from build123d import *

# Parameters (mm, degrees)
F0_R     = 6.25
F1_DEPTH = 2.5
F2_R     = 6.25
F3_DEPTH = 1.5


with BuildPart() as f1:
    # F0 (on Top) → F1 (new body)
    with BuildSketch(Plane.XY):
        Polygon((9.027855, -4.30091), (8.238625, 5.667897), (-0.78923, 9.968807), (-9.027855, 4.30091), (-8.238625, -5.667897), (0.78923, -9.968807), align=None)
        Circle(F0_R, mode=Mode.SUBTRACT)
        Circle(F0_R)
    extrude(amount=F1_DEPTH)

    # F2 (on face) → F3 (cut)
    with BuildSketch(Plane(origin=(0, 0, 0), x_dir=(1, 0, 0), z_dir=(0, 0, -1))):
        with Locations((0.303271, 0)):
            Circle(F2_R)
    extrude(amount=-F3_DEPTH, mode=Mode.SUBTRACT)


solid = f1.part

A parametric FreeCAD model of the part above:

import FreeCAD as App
import Part
import Sketcher
from FreeCAD import Vector
Q = App.Units.Quantity


def add_polygon(sketch, points):
    """Adds a closed chain of lines whose ends are joined by coincident constraints."""
    first, n = sketch.GeometryCount, len(points)
    for a, b in zip(points, points[1:] + points[:1]):
        sketch.addGeometry(Part.LineSegment(App.Vector(*a, 0), App.Vector(*b, 0)), False)
    for i in range(n):
        sketch.addConstraint(Sketcher.Constraint("Coincident", first + i, 2, first + (i + 1) % n, 1))

doc = App.newDocument("Part")
body = doc.addObject("PartDesign::Body", "Body")

# Sketch on XY plane
sketch1 = body.newObject("Sketcher::SketchObject", "Sketch")
sketch1.AttachmentSupport = (doc.getObject("XY_Plane"), [""])
sketch1.MapMode = "FlatFace"
add_polygon(sketch1, [(9, -4), (8, 6), (-1, 10), (-9, 4), (-8, -6), (1, -10)])  # lines 0-5
sketch1.addConstraint(Sketcher.Constraint("Symmetric", 0, 2, 3, 2, -1, 1))
sketch1.addConstraint(Sketcher.Constraint("Symmetric", 1, 2, 4, 2, -1, 1))
sketch1.addConstraint(Sketcher.Constraint("Symmetric", 2, 2, 5, 2, -1, 1))
sketch1.addConstraint(Sketcher.Constraint("Equal", 0, 1))
sketch1.addConstraint(Sketcher.Constraint("Equal", 1, 2))
sketch1.addConstraint(Sketcher.Constraint("Distance", 0, Q("10 mm")))
sketch1.addConstraint(Sketcher.Constraint("DistanceX", 1, 2, -1, 1, Q("0.78923 mm")))
sketch1.addConstraint(Sketcher.Constraint("DistanceY", -1, 1, 2, 2, Q("4.30091 mm")))
sketch1.addConstraint(Sketcher.Constraint("DistanceY", 0, 2, 1, 2, Q("4.30091 mm")))
pad1 = body.newObject("PartDesign::Pad", "Pad")
pad1.Profile = sketch1
pad1.Length = 2.5

# Sketch on XY plane
sketch2 = body.newObject("Sketcher::SketchObject", "Sketch001")
sketch2.AttachmentSupport = (doc.getObject("XY_Plane"), [""])
sketch2.MapMode = "FlatFace"
sketch2.addGeometry(Part.Circle(Vector(0, 0, 0), Vector(0, 0, 1), 6), False)
sketch2.addConstraint(Sketcher.Constraint("PointOnObject", 0, 3, -1))
sketch2.addConstraint(Sketcher.Constraint("Diameter", 0, Q("12.5 mm")))
sketch2.addConstraint(Sketcher.Constraint("DistanceX", -1, 1, 0, 3, Q("0.303271 mm")))
pocket1 = body.newObject("PartDesign::Pocket", "Pocket")
pocket1.Profile = sketch2
pocket1.Length = 1.5
pocket1.Reversed = True

doc.recompute()
